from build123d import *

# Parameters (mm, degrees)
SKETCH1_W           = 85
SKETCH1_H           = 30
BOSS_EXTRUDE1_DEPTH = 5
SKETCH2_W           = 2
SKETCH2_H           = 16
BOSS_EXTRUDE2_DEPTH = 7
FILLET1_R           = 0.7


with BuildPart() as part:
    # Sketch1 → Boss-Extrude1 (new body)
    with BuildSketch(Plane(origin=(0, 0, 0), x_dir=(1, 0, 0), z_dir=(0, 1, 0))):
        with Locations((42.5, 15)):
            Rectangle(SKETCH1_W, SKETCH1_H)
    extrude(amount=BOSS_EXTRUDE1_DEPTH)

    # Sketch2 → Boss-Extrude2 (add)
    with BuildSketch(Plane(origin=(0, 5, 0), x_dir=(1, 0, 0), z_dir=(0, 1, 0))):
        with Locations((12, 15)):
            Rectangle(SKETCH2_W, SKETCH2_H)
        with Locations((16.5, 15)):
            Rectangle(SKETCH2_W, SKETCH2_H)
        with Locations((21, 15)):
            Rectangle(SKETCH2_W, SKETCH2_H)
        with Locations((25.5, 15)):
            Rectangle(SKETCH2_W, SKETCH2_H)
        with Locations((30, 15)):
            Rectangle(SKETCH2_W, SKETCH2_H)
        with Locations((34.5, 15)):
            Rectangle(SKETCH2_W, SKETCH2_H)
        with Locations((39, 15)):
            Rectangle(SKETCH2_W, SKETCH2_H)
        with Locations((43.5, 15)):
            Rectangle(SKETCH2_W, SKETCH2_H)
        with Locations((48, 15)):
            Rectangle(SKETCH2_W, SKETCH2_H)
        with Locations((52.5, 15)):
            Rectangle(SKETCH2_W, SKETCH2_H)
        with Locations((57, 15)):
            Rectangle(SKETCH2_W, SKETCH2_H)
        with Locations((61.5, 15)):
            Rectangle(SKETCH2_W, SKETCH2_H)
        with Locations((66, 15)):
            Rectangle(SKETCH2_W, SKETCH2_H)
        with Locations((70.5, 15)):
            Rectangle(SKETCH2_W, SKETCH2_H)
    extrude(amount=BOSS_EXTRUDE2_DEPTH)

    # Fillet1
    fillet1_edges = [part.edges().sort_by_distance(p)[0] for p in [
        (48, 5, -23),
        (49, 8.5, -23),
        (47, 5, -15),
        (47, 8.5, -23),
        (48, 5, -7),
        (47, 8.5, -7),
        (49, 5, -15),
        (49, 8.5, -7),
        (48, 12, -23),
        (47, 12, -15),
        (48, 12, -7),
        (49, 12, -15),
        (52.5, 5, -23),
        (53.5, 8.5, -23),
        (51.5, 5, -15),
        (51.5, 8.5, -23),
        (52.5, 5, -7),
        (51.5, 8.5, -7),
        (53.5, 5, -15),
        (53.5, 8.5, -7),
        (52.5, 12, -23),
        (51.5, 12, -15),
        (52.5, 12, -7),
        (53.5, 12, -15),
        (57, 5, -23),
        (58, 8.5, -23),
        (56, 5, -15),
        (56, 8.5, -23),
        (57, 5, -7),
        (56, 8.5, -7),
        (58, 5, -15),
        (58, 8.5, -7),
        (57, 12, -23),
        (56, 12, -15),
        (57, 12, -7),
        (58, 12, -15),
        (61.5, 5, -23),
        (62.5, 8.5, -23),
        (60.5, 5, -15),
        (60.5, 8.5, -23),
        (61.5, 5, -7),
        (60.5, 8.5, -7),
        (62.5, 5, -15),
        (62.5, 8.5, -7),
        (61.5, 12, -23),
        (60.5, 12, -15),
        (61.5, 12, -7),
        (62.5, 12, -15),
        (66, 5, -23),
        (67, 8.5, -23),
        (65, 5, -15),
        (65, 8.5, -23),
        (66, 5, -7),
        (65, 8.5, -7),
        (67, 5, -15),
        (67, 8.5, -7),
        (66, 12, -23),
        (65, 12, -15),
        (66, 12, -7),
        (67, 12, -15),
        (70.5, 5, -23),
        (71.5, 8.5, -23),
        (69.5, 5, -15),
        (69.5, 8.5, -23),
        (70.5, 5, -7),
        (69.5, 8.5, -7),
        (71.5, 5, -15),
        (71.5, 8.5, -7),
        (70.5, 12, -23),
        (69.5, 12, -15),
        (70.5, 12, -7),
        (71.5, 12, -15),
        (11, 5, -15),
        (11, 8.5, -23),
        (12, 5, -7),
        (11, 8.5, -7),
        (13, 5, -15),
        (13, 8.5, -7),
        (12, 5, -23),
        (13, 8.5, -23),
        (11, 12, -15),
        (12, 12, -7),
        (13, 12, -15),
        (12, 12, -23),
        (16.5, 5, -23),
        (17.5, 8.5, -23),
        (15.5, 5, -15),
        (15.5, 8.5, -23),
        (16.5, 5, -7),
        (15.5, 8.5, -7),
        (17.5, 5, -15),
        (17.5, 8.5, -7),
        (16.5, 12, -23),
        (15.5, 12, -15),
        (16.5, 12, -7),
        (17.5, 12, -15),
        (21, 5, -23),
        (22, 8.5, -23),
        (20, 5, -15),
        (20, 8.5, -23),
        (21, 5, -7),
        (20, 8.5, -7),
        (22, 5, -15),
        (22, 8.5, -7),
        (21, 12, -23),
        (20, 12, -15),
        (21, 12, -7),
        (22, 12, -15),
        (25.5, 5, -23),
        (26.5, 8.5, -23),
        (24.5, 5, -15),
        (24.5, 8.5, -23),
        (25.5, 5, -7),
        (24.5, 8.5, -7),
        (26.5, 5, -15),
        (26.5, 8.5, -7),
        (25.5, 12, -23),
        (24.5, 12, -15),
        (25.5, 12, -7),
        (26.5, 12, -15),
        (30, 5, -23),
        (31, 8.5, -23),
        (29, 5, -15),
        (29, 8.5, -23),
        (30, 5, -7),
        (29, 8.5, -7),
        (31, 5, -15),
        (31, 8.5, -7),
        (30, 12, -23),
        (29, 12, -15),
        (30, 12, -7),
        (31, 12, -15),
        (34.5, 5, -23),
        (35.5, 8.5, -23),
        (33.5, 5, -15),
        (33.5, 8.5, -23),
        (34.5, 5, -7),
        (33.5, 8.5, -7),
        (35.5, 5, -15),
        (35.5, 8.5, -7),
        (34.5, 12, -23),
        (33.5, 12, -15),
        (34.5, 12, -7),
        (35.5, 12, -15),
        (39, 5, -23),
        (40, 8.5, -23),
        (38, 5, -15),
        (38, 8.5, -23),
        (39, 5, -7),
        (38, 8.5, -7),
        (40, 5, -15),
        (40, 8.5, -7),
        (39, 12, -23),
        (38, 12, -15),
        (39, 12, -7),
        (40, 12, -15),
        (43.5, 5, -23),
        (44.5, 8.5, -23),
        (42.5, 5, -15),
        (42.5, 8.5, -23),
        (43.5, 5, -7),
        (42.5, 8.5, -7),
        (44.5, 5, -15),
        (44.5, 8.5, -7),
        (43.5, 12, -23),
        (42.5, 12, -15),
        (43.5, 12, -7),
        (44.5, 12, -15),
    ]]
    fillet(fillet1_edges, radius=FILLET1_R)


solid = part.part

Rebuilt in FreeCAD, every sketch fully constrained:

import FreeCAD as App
import Part
import Sketcher
Q = App.Units.Quantity


def edges_at(feature, points):
    """Names of the edges that pass closest to the given points."""
    edges = feature.Shape.Edges
    near = lambda p: min(range(len(edges)), key=lambda i: edges[i].distToShape(Part.Vertex(*p))[0])
    return sorted({f"Edge{near(p) + 1}" for p in points})


def add_polygon(sketch, points):
    """Adds a closed chain of lines whose ends are joined by coincident constraints."""
    first, n = sketch.GeometryCount, len(points)
    for a, b in zip(points, points[1:] + points[:1]):
        sketch.addGeometry(Part.LineSegment(App.Vector(*a, 0), App.Vector(*b, 0)), False)
    for i in range(n):
        sketch.addConstraint(Sketcher.Constraint("Coincident", first + i, 2, first + (i + 1) % n, 1))

doc = App.newDocument("Part")
params = doc.addObject("Spreadsheet::Sheet", "Params")
for row, (alias, value) in enumerate([
    ("sketch1_width", "85 mm"),
    ("sketch1_height", "30 mm"),
    ("pad1_length", "5 mm"),
    ("sketch2_width", "2 mm"),
    ("sketch2_height", "16 mm"),
    ("pad2_length", "7 mm"),
    ("fillet_radius", "0.7 mm"),
], start=1):
    params.set(f"A{row}", alias)
    params.set(f"B{row}", "=" + value)
    params.setAlias(f"B{row}", alias)

body = doc.addObject("PartDesign::Body", "Body")

# Sketch on XZ plane
sketch1 = doc.addObject("Sketcher::SketchObject", "Sketch")
body.addObject(sketch1)
sketch1.AttachmentSupport = (doc.XZ_Plane, [""])
sketch1.MapMode = "FlatFace"
add_polygon(sketch1, [(0, -30), (0, 0), (85, 0), (85, -30)])  # lines 0-3
sketch1.addConstraint([
    Sketcher.Constraint("Vertical", 0),
    Sketcher.Constraint("Horizontal", 1),
    Sketcher.Constraint("Vertical", 2),
    Sketcher.Constraint("Horizontal", 3),
    Sketcher.Constraint("Coincident", 0, 2, -1, 1),
    Sketcher.Constraint("DistanceX", 1, 1, 1, 2, Q("85 mm")),
    Sketcher.Constraint("DistanceY", 0, 1, 0, 2, Q("30 mm")),
])
sketch1.setExpression("Constraints[9]", "Params.sketch1_width")
sketch1.setExpression("Constraints[10]", "Params.sketch1_height")
pad1 = doc.addObject("PartDesign::Pad", "Pad")
body.addObject(pad1)
pad1.Profile = sketch1
pad1.setExpression("Length", "Params.pad1_length")
pad1.Reversed = True

# Sketch on XZ plane
sketch2 = doc.addObject("Sketcher::SketchObject", "Sketch001")
body.addObject(sketch2)
sketch2.AttachmentSupport = (doc.XZ_Plane, [""])
sketch2.MapMode = "FlatFace"
sketch2.AttachmentOffset = App.Placement(App.Vector(0, 0, -5), App.Rotation())
add_polygon(sketch2, [(11, -23), (11, -7), (13, -7), (13, -23)])  # lines 0-3
add_polygon(sketch2, [(15.5, -23), (15.5, -7), (17.5, -7), (17.5, -23)])  # lines 4-7
add_polygon(sketch2, [(20, -23), (20, -7), (22, -7), (22, -23)])  # lines 8-11
add_polygon(sketch2, [(24.5, -23), (24.5, -7), (26.5, -7), (26.5, -23)])  # lines 12-15
add_polygon(sketch2, [(29, -23), (29, -7), (31, -7), (31, -23)])  # lines 16-19
add_polygon(sketch2, [(33.5, -23), (33.5, -7), (35.5, -7), (35.5, -23)])  # lines 20-23
add_polygon(sketch2, [(38, -23), (38, -7), (40, -7), (40, -23)])  # lines 24-27
add_polygon(sketch2, [(42.5, -23), (42.5, -7), (44.5, -7), (44.5, -23)])  # lines 28-31
add_polygon(sketch2, [(47, -23), (47, -7), (49, -7), (49, -23)])  # lines 32-35
add_polygon(sketch2, [(51.5, -23), (51.5, -7), (53.5, -7), (53.5, -23)])  # lines 36-39
add_polygon(sketch2, [(56, -23), (56, -7), (58, -7), (58, -23)])  # lines 40-43
add_polygon(sketch2, [(60.5, -23), (60.5, -7), (62.5, -7), (62.5, -23)])  # lines 44-47
add_polygon(sketch2, [(65, -23), (65, -7), (67, -7), (67, -23)])  # lines 48-51
add_polygon(sketch2, [(69.5, -23), (69.5, -7), (71.5, -7), (71.5, -23)])  # lines 52-55
sketch2.addConstraint([
    Sketcher.Constraint("Vertical", 0),
    Sketcher.Constraint("Horizontal", 1),
    Sketcher.Constraint("Vertical", 2),
    Sketcher.Constraint("Horizontal", 3),
    Sketcher.Constraint("Vertical", 4),
    Sketcher.Constraint("Horizontal", 5),
    Sketcher.Constraint("Vertical", 6),
    Sketcher.Constraint("Horizontal", 7),
    Sketcher.Constraint("Vertical", 8),
    Sketcher.Constraint("Horizontal", 9),
    Sketcher.Constraint("Vertical", 10),
    Sketcher.Constraint("Horizontal", 11),
    Sketcher.Constraint("Vertical", 12),
    Sketcher.Constraint("Horizontal", 13),
    Sketcher.Constraint("Vertical", 14),
    Sketcher.Constraint("Horizontal", 15),
    Sketcher.Constraint("Vertical", 16),
    Sketcher.Constraint("Horizontal", 17),
    Sketcher.Constraint("Vertical", 18),
    Sketcher.Constraint("Horizontal", 19),
    Sketcher.Constraint("Vertical", 20),
    Sketcher.Constraint("Horizontal", 21),
    Sketcher.Constraint("Vertical", 22),
    Sketcher.Constraint("Horizontal", 23),
    Sketcher.Constraint("Vertical", 24),
    Sketcher.Constraint("Horizontal", 25),
    Sketcher.Constraint("Vertical", 26),
    Sketcher.Constraint("Horizontal", 27),
    Sketcher.Constraint("Vertical", 28),
    Sketcher.Constraint("Horizontal", 29),
    Sketcher.Constraint("Vertical", 30),
    Sketcher.Constraint("Horizontal", 31),
    Sketcher.Constraint("Vertical", 32),
    Sketcher.Constraint("Horizontal", 33),
    Sketcher.Constraint("Vertical", 34),
    Sketcher.Constraint("Horizontal", 35),
    Sketcher.Constraint("Vertical", 36),
    Sketcher.Constraint("Horizontal", 37),
    Sketcher.Constraint("Vertical", 38),
    Sketcher.Constraint("Horizontal", 39),
    Sketcher.Constraint("Vertical", 40),
    Sketcher.Constraint("Horizontal", 41),
    Sketcher.Constraint("Vertical", 42),
    Sketcher.Constraint("Horizontal", 43),
    Sketcher.Constraint("Vertical", 44),
    Sketcher.Constraint("Horizontal", 45),
    Sketcher.Constraint("Vertical", 46),
    Sketcher.Constraint("Horizontal", 47),
    Sketcher.Constraint("Vertical", 48),
    Sketcher.Constraint("Horizontal", 49),
    Sketcher.Constraint("Vertical", 50),
    Sketcher.Constraint("Horizontal", 51),
    Sketcher.Constraint("Vertical", 52),
    Sketcher.Constraint("Horizontal", 53),
    Sketcher.Constraint("Vertical", 54),
    Sketcher.Constraint("Horizontal", 55),
    Sketcher.Constraint("Horizontal", 1, 2, 4, 2),
    Sketcher.Constraint("Horizontal", 3, 2, 6, 2),
    Sketcher.Constraint("Horizontal", 5, 2, 8, 2),
    Sketcher.Constraint("Horizontal", 7, 2, 10, 2),
    Sketcher.Constraint("Horizontal", 9, 2, 12, 2),
    Sketcher.Constraint("Horizontal", 11, 2, 14, 2),
    Sketcher.Constraint("Horizontal", 13, 2, 16, 2),
    Sketcher.Constraint("Horizontal", 15, 2, 18, 2),
    Sketcher.Constraint("Horizontal", 17, 2, 20, 2),
    Sketcher.Constraint("Horizontal", 19, 2, 22, 2),
    Sketcher.Constraint("Horizontal", 21, 2, 24, 2),
    Sketcher.Constraint("Horizontal", 23, 2, 26, 2),
    Sketcher.Constraint("Horizontal", 25, 2, 28, 2),
    Sketcher.Constraint("Horizontal", 27, 2, 30, 2),
    Sketcher.Constraint("Horizontal", 29, 2, 32, 2),
    Sketcher.Constraint("Horizontal", 31, 2, 34, 2),
    Sketcher.Constraint("Horizontal", 33, 2, 36, 2),
    Sketcher.Constraint("Horizontal", 35, 2, 38, 2),
    Sketcher.Constraint("Horizontal", 37, 2, 40, 2),
    Sketcher.Constraint("Horizontal", 39, 2, 42, 2),
    Sketcher.Constraint("Horizontal", 41, 2, 44, 2),
    Sketcher.Constraint("Horizontal", 43, 2, 46, 2),
    Sketcher.Constraint("Horizontal", 45, 2, 48, 2),
    Sketcher.Constraint("Horizontal", 47, 2, 50, 2),
    Sketcher.Constraint("Horizontal", 49, 2, 52, 2),
    Sketcher.Constraint("Horizontal", 51, 2, 54, 2),
    Sketcher.Constraint("Equal", 3, 5),
    Sketcher.Constraint("Equal", 7, 9),
    Sketcher.Constraint("Equal", 11, 13),
    Sketcher.Constraint("Equal", 15, 17),
    Sketcher.Constraint("Equal", 19, 21),
    Sketcher.Constraint("Equal", 23, 25),
    Sketcher.Constraint("Equal", 27, 29),
    Sketcher.Constraint("Equal", 31, 33),
    Sketcher.Constraint("Equal", 35, 37),
    Sketcher.Constraint("Equal", 39, 41),
    Sketcher.Constraint("Equal", 43, 45),
    Sketcher.Constraint("Equal", 47, 49),
    Sketcher.Constraint("Equal", 51, 53),
    Sketcher.Constraint("DistanceX", 1, 1, 1, 2, Q("2 mm")),
    Sketcher.Constraint("DistanceY", 0, 1, 0, 2, Q("16 mm")),
    Sketcher.Constraint("DistanceX", -1, 1, 0, 2, Q("11 mm")),
    Sketcher.Constraint("DistanceY", 0, 2, -1, 1, Q("7 mm")),
    Sketcher.Constraint("DistanceX", -1, 1, 8, 2, Q("20 mm")),
    Sketcher.Constraint("DistanceX", -1, 1, 16, 2, Q("29 mm")),
    Sketcher.Constraint("DistanceX", -1, 1, 24, 2, Q("38 mm")),
    Sketcher.Constraint("DistanceX", -1, 1, 32, 2, Q("47 mm")),
    Sketcher.Constraint("DistanceX", -1, 1, 40, 2, Q("56 mm")),
    Sketcher.Constraint("DistanceX", -1, 1, 48, 2, Q("65 mm")),
    Sketcher.Constraint("DistanceX", 5, 2, 12, 2, Q("7 mm")),
    Sketcher.Constraint("DistanceX", 13, 2, 20, 2, Q("7 mm")),
    Sketcher.Constraint("DistanceX", 21, 2, 28, 2, Q("7 mm")),
    Sketcher.Constraint("DistanceX", 29, 2, 36, 2, Q("7 mm")),
    Sketcher.Constraint("DistanceX", 37, 2, 44, 2, Q("7 mm")),
    Sketcher.Constraint("DistanceX", 45, 2, 52, 2, Q("7 mm")),
    Sketcher.Constraint("DistanceX", -1, 1, 4, 2, Q("15.5 mm")),
])
sketch2.setExpression("Constraints[151]", "Params.sketch2_width")
sketch2.setExpression("Constraints[152]", "Params.sketch2_height")
pad2 = doc.addObject("PartDesign::Pad", "Pad001")
body.addObject(pad2)
pad2.Profile = sketch2
pad2.setExpression("Length", "Params.pad2_length")
pad2.Reversed = True
doc.recompute()

fillet = doc.addObject("PartDesign::Fillet", "Fillet")
body.addObject(fillet)
fillet.Base = (pad2, edges_at(pad2, [
    (48, 5, -23),
    (49, 8.5, -23),
    (47, 5, -15),
    (47, 8.5, -23),
    (48, 5, -7),
    (47, 8.5, -7),
    (49, 5, -15),
    (49, 8.5, -7),
    (48, 12, -23),
    (47, 12, -15),
    (48, 12, -7),
    (49, 12, -15),
    (52.5, 5, -23),
    (53.5, 8.5, -23),
    (51.5, 5, -15),
    (51.5, 8.5, -23),
    (52.5, 5, -7),
    (51.5, 8.5, -7),
    (53.5, 5, -15),
    (53.5, 8.5, -7),
    (52.5, 12, -23),
    (51.5, 12, -15),
    (52.5, 12, -7),
    (53.5, 12, -15),
    (57, 5, -23),
    (58, 8.5, -23),
    (56, 5, -15),
    (56, 8.5, -23),
    (57, 5, -7),
    (56, 8.5, -7),
    (58, 5, -15),
    (58, 8.5, -7),
    (57, 12, -23),
    (56, 12, -15),
    (57, 12, -7),
    (58, 12, -15),
    (61.5, 5, -23),
    (62.5, 8.5, -23),
    (60.5, 5, -15),
    (60.5, 8.5, -23),
    (61.5, 5, -7),
    (60.5, 8.5, -7),
    (62.5, 5, -15),
    (62.5, 8.5, -7),
    (61.5, 12, -23),
    (60.5, 12, -15),
    (61.5, 12, -7),
    (62.5, 12, -15),
    (66, 5, -23),
    (67, 8.5, -23),
    (65, 5, -15),
    (65, 8.5, -23),
    (66, 5, -7),
    (65, 8.5, -7),
    (67, 5, -15),
    (67, 8.5, -7),
    (66, 12, -23),
    (65, 12, -15),
    (66, 12, -7),
    (67, 12, -15),
    (70.5, 5, -23),
    (71.5, 8.5, -23),
    (69.5, 5, -15),
    (69.5, 8.5, -23),
    (70.5, 5, -7),
    (69.5, 8.5, -7),
    (71.5, 5, -15),
    (71.5, 8.5, -7),
    (70.5, 12, -23),
    (69.5, 12, -15),
    (70.5, 12, -7),
    (71.5, 12, -15),
    (11, 5, -15),
    (11, 8.5, -23),
    (12, 5, -7),
    (11, 8.5, -7),
    (13, 5, -15),
    (13, 8.5, -7),
    (12, 5, -23),
    (13, 8.5, -23),
    (11, 12, -15),
    (12, 12, -7),
    (13, 12, -15),
    (12, 12, -23),
    (16.5, 5, -23),
    (17.5, 8.5, -23),
    (15.5, 5, -15),
    (15.5, 8.5, -23),
    (16.5, 5, -7),
    (15.5, 8.5, -7),
    (17.5, 5, -15),
    (17.5, 8.5, -7),
    (16.5, 12, -23),
    (15.5, 12, -15),
    (16.5, 12, -7),
    (17.5, 12, -15),
    (21, 5, -23),
    (22, 8.5, -23),
    (20, 5, -15),
    (20, 8.5, -23),
    (21, 5, -7),
    (20, 8.5, -7),
    (22, 5, -15),
    (22, 8.5, -7),
    (21, 12, -23),
    (20, 12, -15),
    (21, 12, -7),
    (22, 12, -15),
    (25.5, 5, -23),
    (26.5, 8.5, -23),
    (24.5, 5, -15),
    (24.5, 8.5, -23),
    (25.5, 5, -7),
    (24.5, 8.5, -7),
    (26.5, 5, -15),
    (26.5, 8.5, -7),
    (25.5, 12, -23),
    (24.5, 12, -15),
    (25.5, 12, -7),
    (26.5, 12, -15),
    (30, 5, -23),
    (31, 8.5, -23),
    (29, 5, -15),
    (29, 8.5, -23),
    (30, 5, -7),
    (29, 8.5, -7),
    (31, 5, -15),
    (31, 8.5, -7),
    (30, 12, -23),
    (29, 12, -15),
    (30, 12, -7),
    (31, 12, -15),
    (34.5, 5, -23),
    (35.5, 8.5, -23),
    (33.5, 5, -15),
    (33.5, 8.5, -23),
    (34.5, 5, -7),
    (33.5, 8.5, -7),
    (35.5, 5, -15),
    (35.5, 8.5, -7),
    (34.5, 12, -23),
    (33.5, 12, -15),
    (34.5, 12, -7),
    (35.5, 12, -15),
    (39, 5, -23),
    (40, 8.5, -23),
    (38, 5, -15),
    (38, 8.5, -23),
    (39, 5, -7),
    (38, 8.5, -7),
    (40, 5, -15),
    (40, 8.5, -7),
    (39, 12, -23),
    (38, 12, -15),
    (39, 12, -7),
    (40, 12, -15),
    (43.5, 5, -23),
    (44.5, 8.5, -23),
    (42.5, 5, -15),
    (42.5, 8.5, -23),
    (43.5, 5, -7),
    (42.5, 8.5, -7),
    (44.5, 5, -15),
    (44.5, 8.5, -7),
    (43.5, 12, -23),
    (42.5, 12, -15),
    (43.5, 12, -7),
    (44.5, 12, -15),
]))
fillet.setExpression("Radius", "Params.fillet_radius")

doc.recompute()
